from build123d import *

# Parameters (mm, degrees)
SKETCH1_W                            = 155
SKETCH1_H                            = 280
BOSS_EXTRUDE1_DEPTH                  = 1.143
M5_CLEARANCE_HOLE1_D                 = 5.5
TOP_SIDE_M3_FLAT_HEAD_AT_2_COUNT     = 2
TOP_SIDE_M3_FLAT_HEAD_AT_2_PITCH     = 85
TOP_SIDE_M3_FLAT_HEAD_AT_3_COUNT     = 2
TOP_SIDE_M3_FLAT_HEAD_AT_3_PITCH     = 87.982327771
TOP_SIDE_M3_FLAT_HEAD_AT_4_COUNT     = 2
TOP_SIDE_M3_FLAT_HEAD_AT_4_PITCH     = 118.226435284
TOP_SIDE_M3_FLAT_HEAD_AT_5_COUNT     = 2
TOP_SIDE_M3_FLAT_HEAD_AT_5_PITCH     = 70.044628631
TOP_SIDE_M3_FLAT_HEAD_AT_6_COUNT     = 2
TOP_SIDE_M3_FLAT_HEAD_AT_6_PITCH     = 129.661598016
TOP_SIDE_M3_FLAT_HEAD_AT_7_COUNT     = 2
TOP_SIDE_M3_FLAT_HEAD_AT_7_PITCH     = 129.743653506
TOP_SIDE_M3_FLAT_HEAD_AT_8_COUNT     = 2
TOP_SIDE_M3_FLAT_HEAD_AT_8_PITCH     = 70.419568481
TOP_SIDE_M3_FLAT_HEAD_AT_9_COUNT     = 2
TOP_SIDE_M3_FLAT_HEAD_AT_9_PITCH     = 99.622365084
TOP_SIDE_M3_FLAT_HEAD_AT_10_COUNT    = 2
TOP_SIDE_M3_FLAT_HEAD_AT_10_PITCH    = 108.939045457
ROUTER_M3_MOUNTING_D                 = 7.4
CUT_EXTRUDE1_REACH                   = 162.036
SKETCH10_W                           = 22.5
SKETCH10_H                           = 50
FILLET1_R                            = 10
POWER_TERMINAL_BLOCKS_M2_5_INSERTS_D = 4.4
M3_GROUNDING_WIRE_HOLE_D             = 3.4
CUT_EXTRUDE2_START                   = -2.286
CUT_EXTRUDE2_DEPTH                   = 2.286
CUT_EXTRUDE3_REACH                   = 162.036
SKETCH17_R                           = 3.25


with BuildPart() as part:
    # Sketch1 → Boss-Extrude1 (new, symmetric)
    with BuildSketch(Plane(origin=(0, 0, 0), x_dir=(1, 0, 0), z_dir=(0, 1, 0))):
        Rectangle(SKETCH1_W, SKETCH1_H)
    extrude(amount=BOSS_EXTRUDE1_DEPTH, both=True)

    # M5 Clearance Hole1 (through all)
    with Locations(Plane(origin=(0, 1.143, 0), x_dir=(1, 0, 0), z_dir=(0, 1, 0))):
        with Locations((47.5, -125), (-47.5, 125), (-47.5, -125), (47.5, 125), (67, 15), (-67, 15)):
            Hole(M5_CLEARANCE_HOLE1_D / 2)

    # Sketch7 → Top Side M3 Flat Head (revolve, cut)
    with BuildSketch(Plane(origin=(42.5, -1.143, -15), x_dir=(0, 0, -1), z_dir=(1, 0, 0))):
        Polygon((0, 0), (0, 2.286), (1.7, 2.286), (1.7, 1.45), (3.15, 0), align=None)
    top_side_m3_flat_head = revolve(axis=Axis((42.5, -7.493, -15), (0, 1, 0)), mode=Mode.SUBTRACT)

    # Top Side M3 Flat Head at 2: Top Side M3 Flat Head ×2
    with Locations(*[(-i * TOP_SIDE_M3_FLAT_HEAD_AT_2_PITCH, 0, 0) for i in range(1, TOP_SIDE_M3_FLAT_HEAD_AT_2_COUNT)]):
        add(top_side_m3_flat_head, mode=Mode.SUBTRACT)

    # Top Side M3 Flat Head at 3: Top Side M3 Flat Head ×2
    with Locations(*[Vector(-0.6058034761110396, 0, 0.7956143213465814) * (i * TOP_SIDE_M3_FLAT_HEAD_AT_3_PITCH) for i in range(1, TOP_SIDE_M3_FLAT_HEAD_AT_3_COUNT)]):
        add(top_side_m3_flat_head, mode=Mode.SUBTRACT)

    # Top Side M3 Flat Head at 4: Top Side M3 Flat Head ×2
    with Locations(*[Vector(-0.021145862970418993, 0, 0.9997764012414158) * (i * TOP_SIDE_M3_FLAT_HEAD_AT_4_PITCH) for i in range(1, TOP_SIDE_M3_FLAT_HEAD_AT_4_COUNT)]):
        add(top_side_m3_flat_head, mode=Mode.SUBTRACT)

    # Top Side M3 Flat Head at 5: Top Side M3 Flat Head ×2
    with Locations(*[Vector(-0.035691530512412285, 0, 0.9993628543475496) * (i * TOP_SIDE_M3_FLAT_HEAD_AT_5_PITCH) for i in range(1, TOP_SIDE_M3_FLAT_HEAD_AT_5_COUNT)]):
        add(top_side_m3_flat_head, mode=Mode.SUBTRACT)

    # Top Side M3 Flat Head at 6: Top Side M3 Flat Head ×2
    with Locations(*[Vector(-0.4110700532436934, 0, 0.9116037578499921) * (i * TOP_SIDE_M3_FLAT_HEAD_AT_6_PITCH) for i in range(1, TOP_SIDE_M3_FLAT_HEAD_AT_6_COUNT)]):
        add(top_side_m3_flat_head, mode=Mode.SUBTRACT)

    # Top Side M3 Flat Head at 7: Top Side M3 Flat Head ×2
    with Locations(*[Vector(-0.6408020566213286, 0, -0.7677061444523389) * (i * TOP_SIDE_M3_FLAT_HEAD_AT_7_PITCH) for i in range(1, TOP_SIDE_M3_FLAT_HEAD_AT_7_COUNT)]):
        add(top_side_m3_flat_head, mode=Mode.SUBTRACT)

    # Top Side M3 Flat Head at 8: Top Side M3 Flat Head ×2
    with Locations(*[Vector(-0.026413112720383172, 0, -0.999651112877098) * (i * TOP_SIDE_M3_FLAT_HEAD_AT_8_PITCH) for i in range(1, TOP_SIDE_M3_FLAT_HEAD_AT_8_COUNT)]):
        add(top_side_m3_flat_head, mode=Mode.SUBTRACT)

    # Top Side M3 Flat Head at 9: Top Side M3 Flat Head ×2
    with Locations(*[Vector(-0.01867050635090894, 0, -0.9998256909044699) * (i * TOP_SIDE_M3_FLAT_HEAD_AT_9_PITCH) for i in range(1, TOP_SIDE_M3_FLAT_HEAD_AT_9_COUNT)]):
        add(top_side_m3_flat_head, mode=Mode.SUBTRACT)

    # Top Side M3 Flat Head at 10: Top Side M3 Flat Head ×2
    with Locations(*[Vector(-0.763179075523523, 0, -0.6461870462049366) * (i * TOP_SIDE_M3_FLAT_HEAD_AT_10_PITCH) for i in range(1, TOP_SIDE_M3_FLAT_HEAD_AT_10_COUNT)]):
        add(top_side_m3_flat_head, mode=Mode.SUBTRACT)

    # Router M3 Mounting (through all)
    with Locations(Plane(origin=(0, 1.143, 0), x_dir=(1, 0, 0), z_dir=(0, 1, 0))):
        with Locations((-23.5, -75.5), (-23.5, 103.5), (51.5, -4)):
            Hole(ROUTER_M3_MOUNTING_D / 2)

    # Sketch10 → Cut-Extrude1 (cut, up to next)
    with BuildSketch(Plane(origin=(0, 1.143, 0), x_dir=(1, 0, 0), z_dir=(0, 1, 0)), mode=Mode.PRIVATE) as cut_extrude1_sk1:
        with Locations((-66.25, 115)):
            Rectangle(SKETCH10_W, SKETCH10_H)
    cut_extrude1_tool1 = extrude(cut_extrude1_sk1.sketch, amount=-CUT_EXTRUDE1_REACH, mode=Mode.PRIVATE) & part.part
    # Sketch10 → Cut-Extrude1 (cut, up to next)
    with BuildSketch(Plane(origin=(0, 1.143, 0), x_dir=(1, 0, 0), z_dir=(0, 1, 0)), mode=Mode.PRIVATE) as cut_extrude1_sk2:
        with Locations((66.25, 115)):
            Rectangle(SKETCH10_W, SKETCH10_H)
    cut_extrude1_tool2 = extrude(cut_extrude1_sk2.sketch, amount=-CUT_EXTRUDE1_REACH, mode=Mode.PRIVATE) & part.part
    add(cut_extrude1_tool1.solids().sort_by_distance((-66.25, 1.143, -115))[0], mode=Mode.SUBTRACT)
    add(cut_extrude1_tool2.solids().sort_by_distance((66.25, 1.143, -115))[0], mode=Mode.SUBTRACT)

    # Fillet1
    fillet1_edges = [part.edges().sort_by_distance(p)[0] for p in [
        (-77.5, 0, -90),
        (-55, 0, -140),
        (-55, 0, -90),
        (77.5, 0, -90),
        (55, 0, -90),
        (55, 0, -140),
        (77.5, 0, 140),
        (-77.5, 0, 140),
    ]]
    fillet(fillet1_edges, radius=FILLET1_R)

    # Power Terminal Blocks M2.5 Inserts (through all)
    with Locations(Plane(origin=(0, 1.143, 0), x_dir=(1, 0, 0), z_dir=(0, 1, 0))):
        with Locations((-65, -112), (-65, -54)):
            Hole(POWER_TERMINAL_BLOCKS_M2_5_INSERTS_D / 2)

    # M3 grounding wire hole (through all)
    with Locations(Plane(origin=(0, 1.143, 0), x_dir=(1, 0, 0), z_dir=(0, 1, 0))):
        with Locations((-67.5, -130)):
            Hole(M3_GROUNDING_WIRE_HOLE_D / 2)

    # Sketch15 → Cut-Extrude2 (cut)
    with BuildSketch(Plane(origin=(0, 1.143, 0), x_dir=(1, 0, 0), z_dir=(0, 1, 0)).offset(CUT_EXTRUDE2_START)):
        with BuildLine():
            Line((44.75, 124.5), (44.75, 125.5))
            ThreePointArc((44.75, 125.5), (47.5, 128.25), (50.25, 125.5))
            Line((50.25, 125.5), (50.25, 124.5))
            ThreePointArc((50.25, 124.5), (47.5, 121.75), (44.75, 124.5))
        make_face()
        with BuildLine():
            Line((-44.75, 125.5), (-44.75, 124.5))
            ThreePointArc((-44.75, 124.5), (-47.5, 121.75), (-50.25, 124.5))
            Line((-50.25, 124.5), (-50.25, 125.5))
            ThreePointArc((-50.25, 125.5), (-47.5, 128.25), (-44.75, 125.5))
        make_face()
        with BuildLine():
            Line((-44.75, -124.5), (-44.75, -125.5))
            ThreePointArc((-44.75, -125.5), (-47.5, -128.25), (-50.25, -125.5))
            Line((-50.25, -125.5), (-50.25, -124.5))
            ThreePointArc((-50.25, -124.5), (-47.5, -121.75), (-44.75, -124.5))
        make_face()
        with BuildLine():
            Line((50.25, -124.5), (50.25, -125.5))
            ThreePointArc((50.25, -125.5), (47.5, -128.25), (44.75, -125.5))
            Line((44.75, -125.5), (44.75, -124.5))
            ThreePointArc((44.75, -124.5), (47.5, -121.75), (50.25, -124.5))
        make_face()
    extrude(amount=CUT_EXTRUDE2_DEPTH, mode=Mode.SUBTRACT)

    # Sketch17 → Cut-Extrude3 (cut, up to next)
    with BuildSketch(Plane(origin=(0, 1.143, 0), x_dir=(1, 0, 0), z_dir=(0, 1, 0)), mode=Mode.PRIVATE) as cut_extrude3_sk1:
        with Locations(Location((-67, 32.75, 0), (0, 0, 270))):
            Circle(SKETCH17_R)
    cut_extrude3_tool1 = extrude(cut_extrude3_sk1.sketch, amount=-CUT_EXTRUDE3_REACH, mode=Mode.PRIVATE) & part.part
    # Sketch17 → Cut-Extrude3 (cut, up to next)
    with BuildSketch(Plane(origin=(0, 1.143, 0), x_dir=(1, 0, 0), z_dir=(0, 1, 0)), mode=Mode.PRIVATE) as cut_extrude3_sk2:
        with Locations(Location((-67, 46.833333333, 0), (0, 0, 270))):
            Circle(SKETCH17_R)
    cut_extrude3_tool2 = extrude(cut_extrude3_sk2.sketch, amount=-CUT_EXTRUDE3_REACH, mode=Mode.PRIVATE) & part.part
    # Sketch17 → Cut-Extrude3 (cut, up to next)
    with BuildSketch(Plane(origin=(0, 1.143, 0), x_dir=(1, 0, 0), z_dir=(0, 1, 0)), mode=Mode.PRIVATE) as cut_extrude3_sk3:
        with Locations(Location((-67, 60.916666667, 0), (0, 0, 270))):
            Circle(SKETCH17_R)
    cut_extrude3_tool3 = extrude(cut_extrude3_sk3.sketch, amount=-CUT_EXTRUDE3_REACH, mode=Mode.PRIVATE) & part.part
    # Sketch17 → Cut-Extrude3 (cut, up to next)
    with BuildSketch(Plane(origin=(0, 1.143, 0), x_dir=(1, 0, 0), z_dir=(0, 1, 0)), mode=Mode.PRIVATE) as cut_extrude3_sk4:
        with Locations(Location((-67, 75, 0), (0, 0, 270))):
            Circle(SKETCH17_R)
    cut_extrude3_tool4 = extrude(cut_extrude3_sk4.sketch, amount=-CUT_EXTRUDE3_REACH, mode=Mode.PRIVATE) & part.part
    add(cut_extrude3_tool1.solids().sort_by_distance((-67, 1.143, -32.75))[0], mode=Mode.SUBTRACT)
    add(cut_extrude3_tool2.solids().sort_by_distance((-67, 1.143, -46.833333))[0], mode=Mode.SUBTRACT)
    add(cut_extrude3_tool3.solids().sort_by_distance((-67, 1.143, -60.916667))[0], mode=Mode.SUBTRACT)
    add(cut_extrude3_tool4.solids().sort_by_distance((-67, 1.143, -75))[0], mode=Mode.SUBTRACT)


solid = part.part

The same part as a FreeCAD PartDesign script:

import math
import FreeCAD as App
import Part
import Sketcher
Q = App.Units.Quantity


def edges_at(feature, points):
    """Names of the edges that pass closest to the given points."""
    edges = feature.Shape.Edges
    near = lambda p: min(range(len(edges)), key=lambda i: edges[i].distToShape(Part.Vertex(*p))[0])
    return sorted({f"Edge{near(p) + 1}" for p in points})

doc = App.newDocument("Part")
body = doc.addObject("PartDesign::Body", "Body")

# Sketch on XZ plane
sketch1 = body.newObject("Sketcher::SketchObject", "Sketch")
sketch1.AttachmentSupport = (doc.getObject("XZ_Plane"), [""])
sketch1.MapMode = "FlatFace"
sketch1.addGeometry(Part.LineSegment(App.Vector(-78, -140, 0), App.Vector(-78, 140, 0)), False)
sketch1.addGeometry(Part.LineSegment(App.Vector(-78, 140, 0), App.Vector(78, 140, 0)), False)
sketch1.addGeometry(Part.LineSegment(App.Vector(78, 140, 0), App.Vector(78, -140, 0)), False)
sketch1.addGeometry(Part.LineSegment(App.Vector(78, -140, 0), App.Vector(-78, -140, 0)), False)
sketch1.addConstraint(Sketcher.Constraint("Coincident", 0, 2, 1, 1))
sketch1.addConstraint(Sketcher.Constraint("Coincident", 1, 2, 2, 1))
sketch1.addConstraint(Sketcher.Constraint("Coincident", 2, 2, 3, 1))
sketch1.addConstraint(Sketcher.Constraint("Coincident", 3, 2, 0, 1))
sketch1.addConstraint(Sketcher.Constraint("Vertical", 0))
sketch1.addConstraint(Sketcher.Constraint("Horizontal", 1))
sketch1.addConstraint(Sketcher.Constraint("Vertical", 2))
sketch1.addConstraint(Sketcher.Constraint("Horizontal", 3))
sketch1.addConstraint(Sketcher.Constraint("Symmetric", 0, 2, 2, 2, -1, 1))
sketch1.addConstraint(Sketcher.Constraint("DistanceX", 1, 1, 1, 2, 155.0))
sketch1.addConstraint(Sketcher.Constraint("DistanceY", 0, 1, 0, 2, 280.0))
pad1 = body.newObject("PartDesign::Pad", "Pad")
pad1.Profile = sketch1
pad1.Length = 2.286
pad1.Midplane = True

# Sketch on XZ plane
sketch2 = body.newObject("Sketcher::SketchObject", "Sketch001")
sketch2.AttachmentSupport = (doc.getObject("XZ_Plane"), [""])
sketch2.MapMode = "FlatFace"
sketch2.AttachmentOffset = App.Placement(App.Vector(0, 0, -1.143), App.Rotation())
sketch2.addGeometry(Part.Circle(App.Vector(47.5, 125, 0), App.Vector(0, 0, 1), 2.8), False)
sketch2.addGeometry(Part.Circle(App.Vector(-47.5, -125, 0), App.Vector(0, 0, 1), 2.8), False)
sketch2.addGeometry(Part.Circle(App.Vector(-47.5, 125, 0), App.Vector(0, 0, 1), 2.8), False)
sketch2.addGeometry(Part.Circle(App.Vector(47.5, -125, 0), App.Vector(0, 0, 1), 2.8), False)
sketch2.addGeometry(Part.Circle(App.Vector(67, -15, 0), App.Vector(0, 0, 1), 2.8), False)
sketch2.addGeometry(Part.Circle(App.Vector(-67, -15, 0), App.Vector(0, 0, 1), 2.8), False)
sketch2.addConstraint(Sketcher.Constraint("Equal", 0, 1))
sketch2.addConstraint(Sketcher.Constraint("Equal", 1, 2))
sketch2.addConstraint(Sketcher.Constraint("Equal", 2, 3))
sketch2.addConstraint(Sketcher.Constraint("Equal", 3, 4))
sketch2.addConstraint(Sketcher.Constraint("Equal", 4, 5))
sketch2.addConstraint(Sketcher.Constraint("Symmetric", 0, 3, 1, 3, -1, 1))
sketch2.addConstraint(Sketcher.Constraint("Symmetric", 2, 3, 3, 3, -1, 1))
sketch2.addConstraint(Sketcher.Constraint("Symmetric", 0, 3, 2, 3, -2))
sketch2.addConstraint(Sketcher.Constraint("Symmetric", 4, 3, 5, 3, -2))
sketch2.addConstraint(Sketcher.Constraint("Diameter", 0, 5.5))
sketch2.addConstraint(Sketcher.Constraint("DistanceY", -1, 1, 0, 3, 125.0))
sketch2.addConstraint(Sketcher.Constraint("DistanceX", -1, 1, 4, 3, 67.0))
sketch2.addConstraint(Sketcher.Constraint("DistanceY", 4, 3, -1, 1, 15.0))
sketch2.addConstraint(Sketcher.Constraint("DistanceX", 1, 3, 0, 3, 95.0))
doc.recompute()
hole = body.newObject("PartDesign::Hole", "Hole")
hole.Profile = sketch2
hole.ThreadType = "None"
hole.Diameter = 5.5
hole.DepthType = "ThroughAll"
hole.Reversed = True

# Sketch on YZ plane
sketch3 = body.newObject("Sketcher::SketchObject", "Sketch002")
sketch3.AttachmentSupport = (doc.getObject("YZ_Plane"), [""])
sketch3.MapMode = "FlatFace"
sketch3.AttachmentOffset = App.Placement(App.Vector(0, 0, 42.5), App.Rotation())
sketch3.addGeometry(Part.LineSegment(App.Vector(1.1, -15, 0), App.Vector(-1.1, -15, 0)), False)
sketch3.addGeometry(Part.LineSegment(App.Vector(-1.1, -15, 0), App.Vector(-1.1, -18.1, 0)), False)
sketch3.addGeometry(Part.LineSegment(App.Vector(-1.1, -18.1, 0), App.Vector(0.3, -16.7, 0)), False)
sketch3.addGeometry(Part.LineSegment(App.Vector(0.3, -16.7, 0), App.Vector(1.1, -16.7, 0)), False)
sketch3.addGeometry(Part.LineSegment(App.Vector(1.1, -16.7, 0), App.Vector(1.1, -15, 0)), False)
sketch3.addGeometry(Part.LineSegment(App.Vector(-1.1, -15, 0), App.Vector(1.1, -15, 0)), True)  # axis
sketch3.addConstraint(Sketcher.Constraint("Coincident", 0, 2, 1, 1))
sketch3.addConstraint(Sketcher.Constraint("Coincident", 1, 2, 2, 1))
sketch3.addConstraint(Sketcher.Constraint("Coincident", 2, 2, 3, 1))
sketch3.addConstraint(Sketcher.Constraint("Coincident", 3, 2, 4, 1))
sketch3.addConstraint(Sketcher.Constraint("Coincident", 4, 2, 0, 1))
sketch3.addConstraint(Sketcher.Constraint("Horizontal", 0))
sketch3.addConstraint(Sketcher.Constraint("Vertical", 1))
sketch3.addConstraint(Sketcher.Constraint("Horizontal", 3))
sketch3.addConstraint(Sketcher.Constraint("Vertical", 4))
sketch3.addConstraint(Sketcher.Constraint("Horizontal", 5))
sketch3.addConstraint(Sketcher.Constraint("Coincident", 5, 1, 0, 2))
sketch3.addConstraint(Sketcher.Constraint("Vertical", 3, 2, 5, 2))
sketch3.addConstraint(Sketcher.Constraint("Angle", 2, Q("45 deg")))
sketch3.addConstraint(Sketcher.Constraint("DistanceY", 4, 1, 4, 2, 1.7))
sketch3.addConstraint(Sketcher.Constraint("DistanceY", 0, 2, -1, 1, 15.0))
sketch3.addConstraint(Sketcher.Constraint("DistanceY", 1, 2, 1, 1, 3.15))
sketch3.addConstraint(Sketcher.Constraint("DistanceX", 0, 2, 0, 1, 2.286))
sketch3.addConstraint(Sketcher.Constraint("DistanceX", 0, 2, -1, 1, 1.143))
groove = body.newObject("PartDesign::Groove", "Groove")
groove.Profile = sketch3
groove.ReferenceAxis = (sketch3, ["Axis0"])
groove.Angle = 360
doc.recompute()

linearpattern = body.newObject("PartDesign::LinearPattern", "LinearPattern")
linearpattern.Originals = [groove]
linearpattern.Direction = (doc.getObject("X_Axis"), [""])
linearpattern.Mode = "offset"
linearpattern.Offset = 85
linearpattern.Occurrences = 2
linearpattern.Reversed = True
body.Tip = linearpattern
doc.recompute()

datumline = body.newObject("PartDesign::Line", "DatumLine")
datumline.Placement = App.Placement(App.Vector(0, 0, 0), App.Rotation(App.Vector(0, 0, 1), App.Vector(-0.605803476, 0, 0.795614321)))
linearpattern2 = body.newObject("PartDesign::LinearPattern", "LinearPattern001")
linearpattern2.Originals = [groove]
linearpattern2.Direction = (datumline, [""])
linearpattern2.Mode = "offset"
linearpattern2.Offset = 87.982328
linearpattern2.Occurrences = 2
body.Tip = linearpattern2
doc.recompute()

datumline2 = body.newObject("PartDesign::Line", "DatumLine001")
datumline2.Placement = App.Placement(App.Vector(0, 0, 0), App.Rotation(App.Vector(0, 0, 1), App.Vector(-0.021145863, 0, 0.999776401)))
linearpattern3 = body.newObject("PartDesign::LinearPattern", "LinearPattern002")
linearpattern3.Originals = [groove]
linearpattern3.Direction = (datumline2, [""])
linearpattern3.Mode = "offset"
linearpattern3.Offset = 118.226435
linearpattern3.Occurrences = 2
body.Tip = linearpattern3
doc.recompute()

datumline3 = body.newObject("PartDesign::Line", "DatumLine002")
datumline3.Placement = App.Placement(App.Vector(0, 0, 0), App.Rotation(App.Vector(0, 0, 1), App.Vector(-0.035691531, 0, 0.999362854)))
linearpattern4 = body.newObject("PartDesign::LinearPattern", "LinearPattern003")
linearpattern4.Originals = [groove]
linearpattern4.Direction = (datumline3, [""])
linearpattern4.Mode = "offset"
linearpattern4.Offset = 70.044629
linearpattern4.Occurrences = 2
body.Tip = linearpattern4
doc.recompute()

datumline4 = body.newObject("PartDesign::Line", "DatumLine003")
datumline4.Placement = App.Placement(App.Vector(0, 0, 0), App.Rotation(App.Vector(0, 0, 1), App.Vector(-0.411070053, 0, 0.911603758)))
linearpattern5 = body.newObject("PartDesign::LinearPattern", "LinearPattern004")
linearpattern5.Originals = [groove]
linearpattern5.Direction = (datumline4, [""])
linearpattern5.Mode = "offset"
linearpattern5.Offset = 129.661598
linearpattern5.Occurrences = 2
body.Tip = linearpattern5
doc.recompute()

datumline5 = body.newObject("PartDesign::Line", "DatumLine004")
datumline5.Placement = App.Placement(App.Vector(0, 0, 0), App.Rotation(App.Vector(0, 0, 1), App.Vector(-0.640802057, 0, -0.767706144)))
linearpattern6 = body.newObject("PartDesign::LinearPattern", "LinearPattern005")
linearpattern6.Originals = [groove]
linearpattern6.Direction = (datumline5, [""])
linearpattern6.Mode = "offset"
linearpattern6.Offset = 129.743654
linearpattern6.Occurrences = 2
body.Tip = linearpattern6
doc.recompute()

datumline6 = body.newObject("PartDesign::Line", "DatumLine005")
datumline6.Placement = App.Placement(App.Vector(0, 0, 0), App.Rotation(App.Vector(0, 0, 1), App.Vector(-0.026413113, 0, -0.999651113)))
linearpattern7 = body.newObject("PartDesign::LinearPattern", "LinearPattern006")
linearpattern7.Originals = [groove]
linearpattern7.Direction = (datumline6, [""])
linearpattern7.Mode = "offset"
linearpattern7.Offset = 70.419568
linearpattern7.Occurrences = 2
body.Tip = linearpattern7
doc.recompute()

datumline7 = body.newObject("PartDesign::Line", "DatumLine006")
datumline7.Placement = App.Placement(App.Vector(0, 0, 0), App.Rotation(App.Vector(0, 0, 1), App.Vector(-0.018670506, 0, -0.999825691)))
linearpattern8 = body.newObject("PartDesign::LinearPattern", "LinearPattern007")
linearpattern8.Originals = [groove]
linearpattern8.Direction = (datumline7, [""])
linearpattern8.Mode = "offset"
linearpattern8.Offset = 99.622365
linearpattern8.Occurrences = 2
body.Tip = linearpattern8
doc.recompute()

datumline8 = body.newObject("PartDesign::Line", "DatumLine007")
datumline8.Placement = App.Placement(App.Vector(0, 0, 0), App.Rotation(App.Vector(0, 0, 1), App.Vector(-0.763179076, 0, -0.646187046)))
linearpattern9 = body.newObject("PartDesign::LinearPattern", "LinearPattern008")
linearpattern9.Originals = [groove]
linearpattern9.Direction = (datumline8, [""])
linearpattern9.Mode = "offset"
linearpattern9.Offset = 108.939045
linearpattern9.Occurrences = 2
body.Tip = linearpattern9

# Sketch on XZ plane
sketch4 = body.newObject("Sketcher::SketchObject", "Sketch003")
sketch4.AttachmentSupport = (doc.getObject("XZ_Plane"), [""])
sketch4.MapMode = "FlatFace"
sketch4.AttachmentOffset = App.Placement(App.Vector(0, 0, -1.143), App.Rotation())
sketch4.addGeometry(Part.Circle(App.Vector(-23.5, 75.5, 0), App.Vector(0, 0, 1), 3.7), False)
sketch4.addGeometry(Part.Circle(App.Vector(-23.5, -103.5, 0), App.Vector(0, 0, 1), 3.7), False)
sketch4.addGeometry(Part.Circle(App.Vector(51.5, 4, 0), App.Vector(0, 0, 1), 3.7), False)
sketch4.addConstraint(Sketcher.Constraint("Equal", 0, 1))
sketch4.addConstraint(Sketcher.Constraint("Equal", 1, 2))
sketch4.addConstraint(Sketcher.Constraint("Vertical", 0, 3, 1, 3))
sketch4.addConstraint(Sketcher.Constraint("Diameter", 0, 7.4))
sketch4.addConstraint(Sketcher.Constraint("DistanceY", -1, 1, 2, 3, 4.0))
sketch4.addConstraint(Sketcher.Constraint("DistanceY", 1, 3, 0, 3, 179.0))
sketch4.addConstraint(Sketcher.Constraint("DistanceX", 0, 3, 2, 3, 75.0))
sketch4.addConstraint(Sketcher.Constraint("DistanceX", 0, 3, -1, 1, 23.5))
sketch4.addConstraint(Sketcher.Constraint("DistanceY", -1, 1, 0, 3, 75.5))
doc.recompute()
hole2 = body.newObject("PartDesign::Hole", "Hole001")
hole2.Profile = sketch4
hole2.ThreadType = "None"
hole2.Diameter = 7.4
hole2.DepthType = "ThroughAll"
hole2.Reversed = True

# Sketch on XZ plane
sketch5 = body.newObject("Sketcher::SketchObject", "Sketch004")
sketch5.AttachmentSupport = (doc.getObject("XZ_Plane"), [""])
sketch5.MapMode = "FlatFace"
sketch5.AttachmentOffset = App.Placement(App.Vector(0, 0, -1.143), App.Rotation())
sketch5.addGeometry(Part.LineSegment(App.Vector(-78, -140, 0), App.Vector(-78, -90, 0)), False)
sketch5.addGeometry(Part.LineSegment(App.Vector(-78, -90, 0), App.Vector(-55, -90, 0)), False)
sketch5.addGeometry(Part.LineSegment(App.Vector(-55, -90, 0), App.Vector(-55, -140, 0)), False)
sketch5.addGeometry(Part.LineSegment(App.Vector(-55, -140, 0), App.Vector(-78, -140, 0)), False)
sketch5.addConstraint(Sketcher.Constraint("Coincident", 0, 2, 1, 1))
sketch5.addConstraint(Sketcher.Constraint("Coincident", 1, 2, 2, 1))
sketch5.addConstraint(Sketcher.Constraint("Coincident", 2, 2, 3, 1))
sketch5.addConstraint(Sketcher.Constraint("Coincident", 3, 2, 0, 1))
sketch5.addConstraint(Sketcher.Constraint("Vertical", 0))
sketch5.addConstraint(Sketcher.Constraint("Horizontal", 1))
sketch5.addConstraint(Sketcher.Constraint("Vertical", 2))
sketch5.addConstraint(Sketcher.Constraint("Horizontal", 3))
sketch5.addConstraint(Sketcher.Constraint("DistanceY", 0, 1, 0, 2, 50.0))
sketch5.addConstraint(Sketcher.Constraint("DistanceX", 1, 1, 1, 2, 22.5))
sketch5.addConstraint(Sketcher.Constraint("DistanceY", 0, 2, -1, 1, 90.0))
sketch5.addConstraint(Sketcher.Constraint("DistanceX", 1, 2, -1, 1, 55.0))
pocket1 = body.newObject("PartDesign::Pocket", "Pocket")
pocket1.Profile = sketch5
pocket1.Type = "UpToFirst"
pocket1.Reversed = True

# Sketch on XZ plane
sketch6 = body.newObject("Sketcher::SketchObject", "Sketch005")
sketch6.AttachmentSupport = (doc.getObject("XZ_Plane"), [""])
sketch6.MapMode = "FlatFace"
sketch6.AttachmentOffset = App.Placement(App.Vector(0, 0, -1.143), App.Rotation())
sketch6.addGeometry(Part.LineSegment(App.Vector(55, -140, 0), App.Vector(55, -90, 0)), False)
sketch6.addGeometry(Part.LineSegment(App.Vector(55, -90, 0), App.Vector(78, -90, 0)), False)
sketch6.addGeometry(Part.LineSegment(App.Vector(78, -90, 0), App.Vector(78, -140, 0)), False)
sketch6.addGeometry(Part.LineSegment(App.Vector(78, -140, 0), App.Vector(55, -140, 0)), False)
sketch6.addConstraint(Sketcher.Constraint("Coincident", 0, 2, 1, 1))
sketch6.addConstraint(Sketcher.Constraint("Coincident", 1, 2, 2, 1))
sketch6.addConstraint(Sketcher.Constraint("Coincident", 2, 2, 3, 1))
sketch6.addConstraint(Sketcher.Constraint("Coincident", 3, 2, 0, 1))
sketch6.addConstraint(Sketcher.Constraint("Vertical", 0))
sketch6.addConstraint(Sketcher.Constraint("Horizontal", 1))
sketch6.addConstraint(Sketcher.Constraint("Vertical", 2))
sketch6.addConstraint(Sketcher.Constraint("Horizontal", 3))
sketch6.addConstraint(Sketcher.Constraint("DistanceY", 0, 1, 0, 2, 50.0))
sketch6.addConstraint(Sketcher.Constraint("DistanceX", 1, 1, 1, 2, 22.5))
sketch6.addConstraint(Sketcher.Constraint("DistanceX", -1, 1, 0, 2, 55.0))
sketch6.addConstraint(Sketcher.Constraint("DistanceY", 0, 2, -1, 1, 90.0))
pocket2 = body.newObject("PartDesign::Pocket", "Pocket001")
pocket2.Profile = sketch6
pocket2.Type = "UpToFirst"
pocket2.Reversed = True
doc.recompute()

fillet = body.newObject("PartDesign::Fillet", "Fillet")
fillet.Base = (pocket2, edges_at(pocket2, [
    (-77.5, 0, -90),
    (-55, 0, -140),
    (-55, 0, -90),
    (77.5, 0, -90),
    (55, 0, -90),
    (55, 0, -140),
    (77.5, 0, 140),
    (-77.5, 0, 140),
]))
fillet.Radius = 10

# Sketch on XZ plane
sketch7 = body.newObject("Sketcher::SketchObject", "Sketch006")
sketch7.AttachmentSupport = (doc.getObject("XZ_Plane"), [""])
sketch7.MapMode = "FlatFace"
sketch7.AttachmentOffset = App.Placement(App.Vector(0, 0, -1.143), App.Rotation())
sketch7.addGeometry(Part.Circle(App.Vector(-65, 112, 0), App.Vector(0, 0, 1), 2.2), False)
sketch7.addGeometry(Part.Circle(App.Vector(-65, 54, 0), App.Vector(0, 0, 1), 2.2), False)
sketch7.addConstraint(Sketcher.Constraint("Equal", 0, 1))
sketch7.addConstraint(Sketcher.Constraint("Vertical", 0, 3, 1, 3))
sketch7.addConstraint(Sketcher.Constraint("Diameter", 0, 4.4))
sketch7.addConstraint(Sketcher.Constraint("DistanceX", 0, 3, -1, 1, 65.0))
sketch7.addConstraint(Sketcher.Constraint("DistanceY", -1, 1, 0, 3, 112.0))
sketch7.addConstraint(Sketcher.Constraint("DistanceY", -1, 1, 1, 3, 54.0))
doc.recompute()
hole3 = body.newObject("PartDesign::Hole", "Hole002")
hole3.Profile = sketch7
hole3.ThreadType = "None"
hole3.Diameter = 4.4
hole3.DepthType = "ThroughAll"
hole3.Reversed = True

# Sketch on XZ plane
sketch8 = body.newObject("Sketcher::SketchObject", "Sketch007")
sketch8.AttachmentSupport = (doc.getObject("XZ_Plane"), [""])
sketch8.MapMode = "FlatFace"
sketch8.AttachmentOffset = App.Placement(App.Vector(0, 0, -1.143), App.Rotation())
sketch8.addGeometry(Part.Circle(App.Vector(-67.5, 130, 0), App.Vector(0, 0, 1), 1.7), False)
sketch8.addConstraint(Sketcher.Constraint("Diameter", 0, 3.4))
sketch8.addConstraint(Sketcher.Constraint("DistanceY", -1, 1, 0, 3, 130.0))
sketch8.addConstraint(Sketcher.Constraint("DistanceX", 0, 3, -1, 1, 67.5))
doc.recompute()
hole4 = body.newObject("PartDesign::Hole", "Hole003")
hole4.Profile = sketch8
hole4.ThreadType = "None"
hole4.Diameter = 3.4
hole4.DepthType = "ThroughAll"
hole4.Reversed = True

# Sketch on XZ plane
sketch9 = body.newObject("Sketcher::SketchObject", "Sketch008")
sketch9.AttachmentSupport = (doc.getObject("XZ_Plane"), [""])
sketch9.MapMode = "FlatFace"
sketch9.AttachmentOffset = App.Placement(App.Vector(0, 0, 1.143), App.Rotation())
sketch9.addGeometry(Part.LineSegment(App.Vector(44.8, -125.5, 0), App.Vector(44.8, -124.5, 0)), False)
sketch9.addGeometry(Part.ArcOfCircle(Part.Circle(App.Vector(47.5, -124.5, 0), App.Vector(0, 0, 1), 2.8), math.radians(0), math.radians(180)), False)
sketch9.addGeometry(Part.LineSegment(App.Vector(50.2, -124.5, 0), App.Vector(50.2, -125.5, 0)), False)
sketch9.addGeometry(Part.ArcOfCircle(Part.Circle(App.Vector(47.5, -125.5, 0), App.Vector(0, 0, 1), 2.8), math.radians(180), math.radians(360)), False)
sketch9.addGeometry(Part.LineSegment(App.Vector(-44.8, -124.5, 0), App.Vector(-44.8, -125.5, 0)), False)
sketch9.addGeometry(Part.ArcOfCircle(Part.Circle(App.Vector(-47.5, -125.5, 0), App.Vector(0, 0, 1), 2.8), math.radians(180), math.radians(360)), False)
sketch9.addGeometry(Part.LineSegment(App.Vector(-50.2, -125.5, 0), App.Vector(-50.2, -124.5, 0)), False)
sketch9.addGeometry(Part.ArcOfCircle(Part.Circle(App.Vector(-47.5, -124.5, 0), App.Vector(0, 0, 1), 2.8), math.radians(0), math.radians(180)), False)
sketch9.addGeometry(Part.LineSegment(App.Vector(-44.8, 125.5, 0), App.Vector(-44.8, 124.5, 0)), False)
sketch9.addGeometry(Part.ArcOfCircle(Part.Circle(App.Vector(-47.5, 124.5, 0), App.Vector(0, 0, 1), 2.8), math.radians(180), math.radians(360)), False)
sketch9.addGeometry(Part.LineSegment(App.Vector(-50.2, 124.5, 0), App.Vector(-50.2, 125.5, 0)), False)
sketch9.addGeometry(Part.ArcOfCircle(Part.Circle(App.Vector(-47.5, 125.5, 0), App.Vector(0, 0, 1), 2.8), math.radians(0), math.radians(180)), False)
sketch9.addGeometry(Part.LineSegment(App.Vector(50.2, 125.5, 0), App.Vector(50.2, 124.5, 0)), False)
sketch9.addGeometry(Part.ArcOfCircle(Part.Circle(App.Vector(47.5, 124.5, 0), App.Vector(0, 0, 1), 2.8), math.radians(180), math.radians(360)), False)
sketch9.addGeometry(Part.LineSegment(App.Vector(44.8, 124.5, 0), App.Vector(44.8, 125.5, 0)), False)
sketch9.addGeometry(Part.ArcOfCircle(Part.Circle(App.Vector(47.5, 125.5, 0), App.Vector(0, 0, 1), 2.8), math.radians(0), math.radians(180)), False)
sketch9.addConstraint(Sketcher.Constraint("Tangent", 0, 2, 1, 2))
sketch9.addConstraint(Sketcher.Constraint("Tangent", 1, 1, 2, 1))
sketch9.addConstraint(Sketcher.Constraint("Tangent", 2, 2, 3, 2))
sketch9.addConstraint(Sketcher.Constraint("Tangent", 3, 1, 0, 1))
sketch9.addConstraint(Sketcher.Constraint("Tangent", 4, 2, 5, 2))
sketch9.addConstraint(Sketcher.Constraint("Tangent", 5, 1, 6, 1))
sketch9.addConstraint(Sketcher.Constraint("Tangent", 6, 2, 7, 2))
sketch9.addConstraint(Sketcher.Constraint("Tangent", 7, 1, 4, 1))
sketch9.addConstraint(Sketcher.Constraint("Tangent", 8, 2, 9, 2))
sketch9.addConstraint(Sketcher.Constraint("Tangent", 9, 1, 10, 1))
sketch9.addConstraint(Sketcher.Constraint("Tangent", 10, 2, 11, 2))
sketch9.addConstraint(Sketcher.Constraint("Tangent", 11, 1, 8, 1))
sketch9.addConstraint(Sketcher.Constraint("Tangent", 12, 2, 13, 2))
sketch9.addConstraint(Sketcher.Constraint("Tangent", 13, 1, 14, 1))
sketch9.addConstraint(Sketcher.Constraint("Tangent", 14, 2, 15, 2))
sketch9.addConstraint(Sketcher.Constraint("Tangent", 15, 1, 12, 1))
sketch9.addConstraint(Sketcher.Constraint("Vertical", 0))
sketch9.addConstraint(Sketcher.Constraint("Vertical", 2))
sketch9.addConstraint(Sketcher.Constraint("Vertical", 4))
sketch9.addConstraint(Sketcher.Constraint("Vertical", 6))
sketch9.addConstraint(Sketcher.Constraint("Vertical", 8))
sketch9.addConstraint(Sketcher.Constraint("Vertical", 10))
sketch9.addConstraint(Sketcher.Constraint("Vertical", 12))
sketch9.addConstraint(Sketcher.Constraint("Vertical", 14))
sketch9.addConstraint(Sketcher.Constraint("Equal", 3, 5))
sketch9.addConstraint(Sketcher.Constraint("Equal", 7, 9))
sketch9.addConstraint(Sketcher.Constraint("Equal", 11, 13))
sketch9.addConstraint(Sketcher.Constraint("Symmetric", 1, 3, 9, 3, -1, 1))
sketch9.addConstraint(Sketcher.Constraint("Symmetric", 7, 3, 13, 3, -1, 1))
sketch9.addConstraint(Sketcher.Constraint("Symmetric", 3, 3, 5, 3, -2))
sketch9.addConstraint(Sketcher.Constraint("Horizontal", 1, 3, 7, 3))
sketch9.addConstraint(Sketcher.Constraint("Horizontal", 11, 3, 15, 3))
sketch9.addConstraint(Sketcher.Constraint("Equal", 6, 8))
sketch9.addConstraint(Sketcher.Constraint("DistanceY", 0, 1, 0, 2, 1.0))
sketch9.addConstraint(Sketcher.Constraint("Radius", 1, 2.75))
sketch9.addConstraint(Sketcher.Constraint("DistanceX", 5, 3, 3, 3, 95.0))
sketch9.addConstraint(Sketcher.Constraint("DistanceY", 7, 3, 9, 3, 249.0))
pocket3 = body.newObject("PartDesign::Pocket", "Pocket002")
pocket3.Profile = sketch9
pocket3.Length = 2.286

# Sketch on XZ plane
sketch10 = body.newObject("Sketcher::SketchObject", "Sketch009")
sketch10.AttachmentSupport = (doc.getObject("XZ_Plane"), [""])
sketch10.MapMode = "FlatFace"
sketch10.AttachmentOffset = App.Placement(App.Vector(0, 0, -1.143), App.Rotation())
sketch10.addGeometry(Part.Circle(App.Vector(-67, -32.8, 0), App.Vector(0, 0, 1), 3.2), False)
sketch10.addConstraint(Sketcher.Constraint("Diameter", 0, 6.5))
sketch10.addConstraint(Sketcher.Constraint("DistanceX", 0, 3, -1, 1, 67.0))
sketch10.addConstraint(Sketcher.Constraint("DistanceY", 0, 3, -1, 1, 32.75))
pocket4 = body.newObject("PartDesign::Pocket", "Pocket003")
pocket4.Profile = sketch10
pocket4.Type = "UpToFirst"
pocket4.Reversed = True

# Sketch on XZ plane
sketch11 = body.newObject("Sketcher::SketchObject", "Sketch010")
sketch11.AttachmentSupport = (doc.getObject("XZ_Plane"), [""])
sketch11.MapMode = "FlatFace"
sketch11.AttachmentOffset = App.Placement(App.Vector(0, 0, -1.143), App.Rotation())
sketch11.addGeometry(Part.Circle(App.Vector(-67, -46.8, 0), App.Vector(0, 0, 1), 3.2), False)
sketch11.addConstraint(Sketcher.Constraint("Diameter", 0, 6.5))
sketch11.addConstraint(Sketcher.Constraint("DistanceX", 0, 3, -1, 1, 67.0))
sketch11.addConstraint(Sketcher.Constraint("DistanceY", 0, 3, -1, 1, 46.833333))
pocket5 = body.newObject("PartDesign::Pocket", "Pocket004")
pocket5.Profile = sketch11
pocket5.Type = "UpToFirst"
pocket5.Reversed = True

# Sketch on XZ plane
sketch12 = body.newObject("Sketcher::SketchObject", "Sketch011")
sketch12.AttachmentSupport = (doc.getObject("XZ_Plane"), [""])
sketch12.MapMode = "FlatFace"
sketch12.AttachmentOffset = App.Placement(App.Vector(0, 0, -1.143), App.Rotation())
sketch12.addGeometry(Part.Circle(App.Vector(-67, -60.9, 0), App.Vector(0, 0, 1), 3.2), False)
sketch12.addConstraint(Sketcher.Constraint("Diameter", 0, 6.5))
sketch12.addConstraint(Sketcher.Constraint("DistanceX", 0, 3, -1, 1, 67.0))
sketch12.addConstraint(Sketcher.Constraint("DistanceY", 0, 3, -1, 1, 60.916667))
pocket6 = body.newObject("PartDesign::Pocket", "Pocket005")
pocket6.Profile = sketch12
pocket6.Type = "UpToFirst"
pocket6.Reversed = True

# Sketch on XZ plane
sketch13 = body.newObject("Sketcher::SketchObject", "Sketch012")
sketch13.AttachmentSupport = (doc.getObject("XZ_Plane"), [""])
sketch13.MapMode = "FlatFace"
sketch13.AttachmentOffset = App.Placement(App.Vector(0, 0, -1.143), App.Rotation())
sketch13.addGeometry(Part.Circle(App.Vector(-67, -75, 0), App.Vector(0, 0, 1), 3.2), False)
sketch13.addConstraint(Sketcher.Constraint("Diameter", 0, 6.5))
sketch13.addConstraint(Sketcher.Constraint("DistanceX", 0, 3, -1, 1, 67.0))
sketch13.addConstraint(Sketcher.Constraint("DistanceY", 0, 3, -1, 1, 75.0))
pocket7 = body.newObject("PartDesign::Pocket", "Pocket006")
pocket7.Profile = sketch13
pocket7.Type = "UpToFirst"
pocket7.Reversed = True

doc.recompute()
